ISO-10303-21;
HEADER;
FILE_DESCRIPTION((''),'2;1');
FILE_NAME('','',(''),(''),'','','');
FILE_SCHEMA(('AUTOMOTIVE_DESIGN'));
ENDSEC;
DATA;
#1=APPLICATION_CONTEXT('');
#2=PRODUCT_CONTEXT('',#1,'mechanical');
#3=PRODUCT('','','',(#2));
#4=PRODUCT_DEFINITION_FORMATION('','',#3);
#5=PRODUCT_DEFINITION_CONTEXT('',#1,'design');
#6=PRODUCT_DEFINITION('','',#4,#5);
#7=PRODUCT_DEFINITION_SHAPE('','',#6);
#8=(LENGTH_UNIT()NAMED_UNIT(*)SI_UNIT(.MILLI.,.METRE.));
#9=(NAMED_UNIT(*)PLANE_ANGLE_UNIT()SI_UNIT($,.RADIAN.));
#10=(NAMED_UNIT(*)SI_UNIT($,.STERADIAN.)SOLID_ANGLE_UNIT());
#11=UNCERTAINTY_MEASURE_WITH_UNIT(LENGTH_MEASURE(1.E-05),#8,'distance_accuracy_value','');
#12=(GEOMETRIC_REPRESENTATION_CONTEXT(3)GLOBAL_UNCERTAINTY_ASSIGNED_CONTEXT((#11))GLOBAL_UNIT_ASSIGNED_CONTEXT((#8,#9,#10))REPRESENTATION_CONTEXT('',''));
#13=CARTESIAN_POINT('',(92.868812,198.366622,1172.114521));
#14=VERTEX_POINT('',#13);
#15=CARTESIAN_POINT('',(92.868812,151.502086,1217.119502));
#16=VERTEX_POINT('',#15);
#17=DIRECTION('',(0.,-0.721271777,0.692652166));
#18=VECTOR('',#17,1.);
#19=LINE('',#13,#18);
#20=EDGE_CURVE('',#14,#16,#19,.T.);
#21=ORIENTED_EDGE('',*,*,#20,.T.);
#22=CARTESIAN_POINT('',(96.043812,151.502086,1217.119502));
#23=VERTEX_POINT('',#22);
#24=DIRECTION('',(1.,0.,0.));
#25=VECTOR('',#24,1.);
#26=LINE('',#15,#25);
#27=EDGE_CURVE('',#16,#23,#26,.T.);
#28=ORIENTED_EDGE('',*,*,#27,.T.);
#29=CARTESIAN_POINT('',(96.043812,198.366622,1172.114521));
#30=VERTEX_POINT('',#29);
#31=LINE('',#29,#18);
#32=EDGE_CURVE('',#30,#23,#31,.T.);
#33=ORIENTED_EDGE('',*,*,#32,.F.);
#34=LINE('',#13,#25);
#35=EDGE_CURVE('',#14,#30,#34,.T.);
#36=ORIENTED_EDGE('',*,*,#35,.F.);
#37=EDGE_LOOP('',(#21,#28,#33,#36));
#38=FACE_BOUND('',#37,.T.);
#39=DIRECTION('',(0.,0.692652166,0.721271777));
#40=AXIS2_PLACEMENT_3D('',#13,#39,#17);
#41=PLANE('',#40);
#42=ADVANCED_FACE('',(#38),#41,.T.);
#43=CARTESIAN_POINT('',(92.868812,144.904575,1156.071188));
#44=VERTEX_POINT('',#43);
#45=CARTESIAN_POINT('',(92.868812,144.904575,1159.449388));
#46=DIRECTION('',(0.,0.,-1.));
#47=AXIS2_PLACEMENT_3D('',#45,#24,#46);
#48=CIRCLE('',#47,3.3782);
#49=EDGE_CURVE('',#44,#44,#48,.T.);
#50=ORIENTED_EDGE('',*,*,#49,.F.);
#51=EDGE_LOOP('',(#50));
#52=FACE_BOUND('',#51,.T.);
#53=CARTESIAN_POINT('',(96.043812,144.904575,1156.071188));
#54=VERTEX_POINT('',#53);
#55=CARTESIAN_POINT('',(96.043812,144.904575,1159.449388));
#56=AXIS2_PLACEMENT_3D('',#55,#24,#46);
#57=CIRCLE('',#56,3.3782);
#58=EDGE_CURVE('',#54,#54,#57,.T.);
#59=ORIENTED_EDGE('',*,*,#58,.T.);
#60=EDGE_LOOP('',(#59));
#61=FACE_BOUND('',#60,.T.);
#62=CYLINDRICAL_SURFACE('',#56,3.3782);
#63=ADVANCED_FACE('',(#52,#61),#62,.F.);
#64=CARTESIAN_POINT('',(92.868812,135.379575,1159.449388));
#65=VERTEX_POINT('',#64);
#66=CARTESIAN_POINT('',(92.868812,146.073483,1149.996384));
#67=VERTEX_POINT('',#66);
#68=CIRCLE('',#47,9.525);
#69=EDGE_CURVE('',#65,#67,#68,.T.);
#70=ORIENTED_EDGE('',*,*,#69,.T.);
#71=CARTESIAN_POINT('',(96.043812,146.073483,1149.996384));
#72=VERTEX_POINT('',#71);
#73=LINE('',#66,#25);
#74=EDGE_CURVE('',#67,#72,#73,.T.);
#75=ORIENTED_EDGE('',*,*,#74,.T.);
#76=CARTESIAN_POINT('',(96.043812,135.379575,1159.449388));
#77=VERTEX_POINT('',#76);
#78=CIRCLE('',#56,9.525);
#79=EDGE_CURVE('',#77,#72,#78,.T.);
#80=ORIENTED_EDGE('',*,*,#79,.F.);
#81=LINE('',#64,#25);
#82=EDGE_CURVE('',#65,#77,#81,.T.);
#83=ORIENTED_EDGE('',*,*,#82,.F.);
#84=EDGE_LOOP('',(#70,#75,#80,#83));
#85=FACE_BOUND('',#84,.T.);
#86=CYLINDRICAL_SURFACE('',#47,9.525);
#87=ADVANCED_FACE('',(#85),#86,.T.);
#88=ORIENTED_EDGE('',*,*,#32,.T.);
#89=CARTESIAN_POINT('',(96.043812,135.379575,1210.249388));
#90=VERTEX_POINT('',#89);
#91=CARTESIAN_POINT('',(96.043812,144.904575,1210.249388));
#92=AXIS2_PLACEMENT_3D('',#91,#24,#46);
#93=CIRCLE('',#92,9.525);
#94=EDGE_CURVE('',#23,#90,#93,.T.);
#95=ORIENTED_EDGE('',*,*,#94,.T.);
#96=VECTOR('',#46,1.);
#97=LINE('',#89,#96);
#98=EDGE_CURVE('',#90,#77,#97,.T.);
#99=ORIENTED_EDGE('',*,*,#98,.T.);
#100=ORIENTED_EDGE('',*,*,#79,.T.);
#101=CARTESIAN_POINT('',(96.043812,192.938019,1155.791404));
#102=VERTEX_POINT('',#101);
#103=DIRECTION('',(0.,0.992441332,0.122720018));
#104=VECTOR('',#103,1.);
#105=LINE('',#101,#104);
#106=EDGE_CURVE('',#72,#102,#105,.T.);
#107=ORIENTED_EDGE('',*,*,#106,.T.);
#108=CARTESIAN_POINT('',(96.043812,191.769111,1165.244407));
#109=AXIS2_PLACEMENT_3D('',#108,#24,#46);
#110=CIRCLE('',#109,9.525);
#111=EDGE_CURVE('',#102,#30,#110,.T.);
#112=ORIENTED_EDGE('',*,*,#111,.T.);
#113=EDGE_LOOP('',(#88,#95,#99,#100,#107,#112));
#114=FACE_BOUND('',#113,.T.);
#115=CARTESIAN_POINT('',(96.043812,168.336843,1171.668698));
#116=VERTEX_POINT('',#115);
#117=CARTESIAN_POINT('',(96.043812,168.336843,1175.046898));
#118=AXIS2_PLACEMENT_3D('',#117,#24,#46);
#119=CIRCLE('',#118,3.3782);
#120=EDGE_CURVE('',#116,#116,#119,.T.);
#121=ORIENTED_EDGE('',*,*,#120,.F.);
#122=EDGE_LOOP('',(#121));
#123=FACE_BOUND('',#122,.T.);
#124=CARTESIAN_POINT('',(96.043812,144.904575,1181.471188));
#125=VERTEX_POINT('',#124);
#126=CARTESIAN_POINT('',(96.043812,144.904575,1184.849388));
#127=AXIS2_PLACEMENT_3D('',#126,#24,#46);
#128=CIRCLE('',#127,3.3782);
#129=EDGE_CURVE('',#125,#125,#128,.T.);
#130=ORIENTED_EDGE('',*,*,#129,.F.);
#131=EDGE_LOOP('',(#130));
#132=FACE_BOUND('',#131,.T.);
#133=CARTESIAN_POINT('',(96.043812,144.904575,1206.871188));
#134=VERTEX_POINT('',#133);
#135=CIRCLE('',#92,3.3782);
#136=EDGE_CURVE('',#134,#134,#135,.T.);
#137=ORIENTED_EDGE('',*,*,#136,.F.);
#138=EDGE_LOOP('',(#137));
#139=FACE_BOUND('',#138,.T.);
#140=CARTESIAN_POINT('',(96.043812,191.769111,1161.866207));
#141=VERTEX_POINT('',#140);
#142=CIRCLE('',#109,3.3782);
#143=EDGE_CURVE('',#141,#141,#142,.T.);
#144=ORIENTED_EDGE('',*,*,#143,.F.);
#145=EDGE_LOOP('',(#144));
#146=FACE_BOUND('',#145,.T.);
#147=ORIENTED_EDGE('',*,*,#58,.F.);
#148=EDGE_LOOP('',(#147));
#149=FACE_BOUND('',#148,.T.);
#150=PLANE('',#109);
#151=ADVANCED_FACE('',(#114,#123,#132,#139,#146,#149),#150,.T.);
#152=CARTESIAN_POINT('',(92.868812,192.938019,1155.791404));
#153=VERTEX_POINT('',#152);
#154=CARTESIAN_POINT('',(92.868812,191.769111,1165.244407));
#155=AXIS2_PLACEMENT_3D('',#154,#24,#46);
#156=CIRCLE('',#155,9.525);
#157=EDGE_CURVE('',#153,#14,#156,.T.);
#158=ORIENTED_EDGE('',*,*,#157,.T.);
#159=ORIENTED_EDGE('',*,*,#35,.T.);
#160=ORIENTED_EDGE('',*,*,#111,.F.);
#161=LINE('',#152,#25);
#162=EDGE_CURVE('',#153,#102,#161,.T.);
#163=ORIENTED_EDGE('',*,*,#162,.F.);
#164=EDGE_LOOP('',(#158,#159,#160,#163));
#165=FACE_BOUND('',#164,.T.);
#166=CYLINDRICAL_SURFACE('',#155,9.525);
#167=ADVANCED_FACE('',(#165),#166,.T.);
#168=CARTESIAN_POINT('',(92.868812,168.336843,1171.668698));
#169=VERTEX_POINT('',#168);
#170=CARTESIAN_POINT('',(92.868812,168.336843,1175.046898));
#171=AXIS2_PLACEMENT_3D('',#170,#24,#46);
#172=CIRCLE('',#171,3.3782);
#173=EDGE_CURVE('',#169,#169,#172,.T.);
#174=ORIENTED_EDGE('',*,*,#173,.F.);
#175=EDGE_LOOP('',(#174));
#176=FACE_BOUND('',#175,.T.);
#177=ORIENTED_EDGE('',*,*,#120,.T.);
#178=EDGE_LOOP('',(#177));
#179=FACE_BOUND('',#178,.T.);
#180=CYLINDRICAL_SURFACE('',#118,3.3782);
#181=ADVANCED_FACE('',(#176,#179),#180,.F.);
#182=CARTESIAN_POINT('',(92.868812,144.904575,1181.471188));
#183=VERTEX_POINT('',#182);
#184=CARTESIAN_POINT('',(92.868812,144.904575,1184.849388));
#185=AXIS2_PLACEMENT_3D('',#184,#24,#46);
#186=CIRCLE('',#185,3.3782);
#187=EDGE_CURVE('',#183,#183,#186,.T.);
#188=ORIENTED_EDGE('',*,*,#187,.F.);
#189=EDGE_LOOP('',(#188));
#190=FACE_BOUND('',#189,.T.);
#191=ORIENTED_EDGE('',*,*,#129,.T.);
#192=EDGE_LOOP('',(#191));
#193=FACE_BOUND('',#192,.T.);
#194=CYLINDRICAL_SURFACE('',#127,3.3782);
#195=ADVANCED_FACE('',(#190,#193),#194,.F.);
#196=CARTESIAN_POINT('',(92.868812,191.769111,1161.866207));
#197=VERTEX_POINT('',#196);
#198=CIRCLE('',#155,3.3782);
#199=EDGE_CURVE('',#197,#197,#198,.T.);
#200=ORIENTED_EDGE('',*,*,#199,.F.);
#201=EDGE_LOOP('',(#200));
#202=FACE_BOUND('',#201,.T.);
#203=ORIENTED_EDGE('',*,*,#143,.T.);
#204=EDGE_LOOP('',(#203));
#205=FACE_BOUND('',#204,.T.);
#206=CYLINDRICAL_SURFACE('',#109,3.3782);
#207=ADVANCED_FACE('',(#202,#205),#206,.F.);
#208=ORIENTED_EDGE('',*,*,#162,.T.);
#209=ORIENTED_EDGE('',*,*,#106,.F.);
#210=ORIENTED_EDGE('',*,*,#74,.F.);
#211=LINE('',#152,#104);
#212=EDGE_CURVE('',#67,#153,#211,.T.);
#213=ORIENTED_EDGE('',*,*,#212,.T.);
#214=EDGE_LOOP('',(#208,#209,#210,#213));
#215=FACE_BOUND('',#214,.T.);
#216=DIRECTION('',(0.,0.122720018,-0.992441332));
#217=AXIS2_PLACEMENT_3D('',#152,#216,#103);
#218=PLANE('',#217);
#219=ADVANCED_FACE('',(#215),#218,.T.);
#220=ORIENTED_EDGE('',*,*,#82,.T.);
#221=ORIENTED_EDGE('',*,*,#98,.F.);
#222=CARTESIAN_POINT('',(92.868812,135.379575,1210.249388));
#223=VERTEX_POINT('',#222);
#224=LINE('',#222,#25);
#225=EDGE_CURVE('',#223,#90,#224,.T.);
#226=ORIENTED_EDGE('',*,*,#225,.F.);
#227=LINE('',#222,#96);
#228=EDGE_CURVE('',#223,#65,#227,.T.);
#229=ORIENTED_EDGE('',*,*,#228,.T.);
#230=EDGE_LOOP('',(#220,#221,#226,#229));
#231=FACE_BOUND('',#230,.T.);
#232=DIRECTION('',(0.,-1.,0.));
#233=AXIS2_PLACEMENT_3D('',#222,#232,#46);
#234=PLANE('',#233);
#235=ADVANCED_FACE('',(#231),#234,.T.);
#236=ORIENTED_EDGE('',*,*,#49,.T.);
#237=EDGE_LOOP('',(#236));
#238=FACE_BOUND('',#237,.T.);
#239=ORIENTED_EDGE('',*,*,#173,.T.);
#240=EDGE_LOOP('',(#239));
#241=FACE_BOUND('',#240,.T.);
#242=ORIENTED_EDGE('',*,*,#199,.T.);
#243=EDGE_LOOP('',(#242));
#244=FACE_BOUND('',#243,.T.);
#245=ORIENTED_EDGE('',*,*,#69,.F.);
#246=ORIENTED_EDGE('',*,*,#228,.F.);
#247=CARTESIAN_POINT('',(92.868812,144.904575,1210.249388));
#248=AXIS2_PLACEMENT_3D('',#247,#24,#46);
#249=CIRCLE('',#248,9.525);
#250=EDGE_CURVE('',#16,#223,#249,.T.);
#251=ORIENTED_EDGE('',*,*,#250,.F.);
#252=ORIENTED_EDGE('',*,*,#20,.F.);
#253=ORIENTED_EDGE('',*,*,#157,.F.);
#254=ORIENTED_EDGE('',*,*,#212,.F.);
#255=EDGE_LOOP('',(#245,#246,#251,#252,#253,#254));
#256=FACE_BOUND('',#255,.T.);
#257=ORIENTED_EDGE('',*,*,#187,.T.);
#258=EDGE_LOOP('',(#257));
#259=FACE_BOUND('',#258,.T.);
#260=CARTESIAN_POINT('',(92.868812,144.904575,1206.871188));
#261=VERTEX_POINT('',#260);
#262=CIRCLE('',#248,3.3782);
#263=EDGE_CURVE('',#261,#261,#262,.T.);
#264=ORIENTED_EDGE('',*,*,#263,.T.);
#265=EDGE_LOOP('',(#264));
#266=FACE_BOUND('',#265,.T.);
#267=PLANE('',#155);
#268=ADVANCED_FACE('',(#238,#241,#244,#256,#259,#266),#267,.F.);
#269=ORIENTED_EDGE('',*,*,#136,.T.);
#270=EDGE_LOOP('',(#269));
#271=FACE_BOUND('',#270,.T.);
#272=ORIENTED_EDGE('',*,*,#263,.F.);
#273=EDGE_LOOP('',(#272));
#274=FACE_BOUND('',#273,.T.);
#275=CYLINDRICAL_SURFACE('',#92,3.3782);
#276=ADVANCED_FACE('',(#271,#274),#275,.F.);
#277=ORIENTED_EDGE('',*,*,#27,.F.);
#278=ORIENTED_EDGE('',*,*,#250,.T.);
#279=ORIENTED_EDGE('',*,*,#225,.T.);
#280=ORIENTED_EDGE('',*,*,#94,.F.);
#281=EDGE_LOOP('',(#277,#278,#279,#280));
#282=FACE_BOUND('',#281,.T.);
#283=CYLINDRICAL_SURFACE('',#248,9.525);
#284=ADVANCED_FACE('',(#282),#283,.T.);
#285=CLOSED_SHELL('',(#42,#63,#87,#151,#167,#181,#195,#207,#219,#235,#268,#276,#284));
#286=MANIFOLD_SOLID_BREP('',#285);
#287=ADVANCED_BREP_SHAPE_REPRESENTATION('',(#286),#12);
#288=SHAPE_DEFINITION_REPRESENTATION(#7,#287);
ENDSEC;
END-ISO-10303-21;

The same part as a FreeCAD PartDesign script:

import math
import FreeCAD as App
import Part
import Sketcher
Q = App.Units.Quantity

doc = App.newDocument("Part")
body = doc.addObject("PartDesign::Body", "Body")

# Sketch on YZ plane
sketch1 = body.newObject("Sketcher::SketchObject", "Sketch")
sketch1.AttachmentSupport = (doc.getObject("YZ_Plane"), [""])
sketch1.MapMode = "FlatFace"
sketch1.AttachmentOffset = App.Placement(App.Vector(0, 0, 92.868812), App.Rotation())
sketch1.addGeometry(Part.LineSegment(App.Vector(146, 1150, 0), App.Vector(193, 1156, 0)), False)
sketch1.addGeometry(Part.ArcOfCircle(Part.Circle(App.Vector(192, 1165, 0), App.Vector(0, 0, 1), 10), math.radians(-83), math.radians(46)), False)
sketch1.addGeometry(Part.LineSegment(App.Vector(198, 1172, 0), App.Vector(152, 1217, 0)), False)
sketch1.addGeometry(Part.ArcOfCircle(Part.Circle(App.Vector(145, 1210, 0), App.Vector(0, 0, 1), 10), math.radians(46), math.radians(180)), False)
sketch1.addGeometry(Part.LineSegment(App.Vector(135, 1210, 0), App.Vector(135, 1159, 0)), False)
sketch1.addGeometry(Part.ArcOfCircle(Part.Circle(App.Vector(145, 1159, 0), App.Vector(0, 0, 1), 10), math.radians(180), math.radians(277)), False)
sketch1.addConstraint(Sketcher.Constraint("Tangent", 0, 2, 1, 1))
sketch1.addConstraint(Sketcher.Constraint("Tangent", 1, 2, 2, 1))
sketch1.addConstraint(Sketcher.Constraint("Tangent", 2, 2, 3, 1))
sketch1.addConstraint(Sketcher.Constraint("Tangent", 3, 2, 4, 1))
sketch1.addConstraint(Sketcher.Constraint("Tangent", 4, 2, 5, 1))
sketch1.addConstraint(Sketcher.Constraint("Tangent", 5, 2, 0, 1))
sketch1.addConstraint(Sketcher.Constraint("Vertical", 4))
sketch1.addConstraint(Sketcher.Constraint("Equal", 1, 3))
sketch1.addConstraint(Sketcher.Constraint("Equal", 3, 5))
sketch1.addConstraint(Sketcher.Constraint("DistanceY", 4, 2, 4, 1, Q("2 in")))
sketch1.addConstraint(Sketcher.Constraint("Radius", 1, Q("0.375 in")))
sketch1.addConstraint(Sketcher.Constraint("DistanceY", -1, 1, 2, 2, 1217.119502))
sketch1.addConstraint(Sketcher.Constraint("DistanceY", 0, 2, 2, 2, 61.328098))
sketch1.addConstraint(Sketcher.Constraint("DistanceX", -1, 1, 1, 3, 191.769111))
sketch1.addConstraint(Sketcher.Constraint("DistanceY", -1, 1, 3, 3, 1210.249388))
pad1 = body.newObject("PartDesign::Pad", "Pad")
pad1.Profile = sketch1
pad1.Length = Q("0.125 in")

# Sketch on YZ plane
sketch2 = body.newObject("Sketcher::SketchObject", "Sketch001")
sketch2.AttachmentSupport = (doc.getObject("YZ_Plane"), [""])
sketch2.MapMode = "FlatFace"
sketch2.AttachmentOffset = App.Placement(App.Vector(0, 0, 96.043812), App.Rotation())
sketch2.addGeometry(Part.Circle(App.Vector(168.3, 1175, 0), App.Vector(0, 0, 1), 3.4), False)
sketch2.addGeometry(Part.Circle(App.Vector(191.8, 1165.2, 0), App.Vector(0, 0, 1), 3.4), False)
sketch2.addGeometry(Part.Circle(App.Vector(144.9, 1210.2, 0), App.Vector(0, 0, 1), 3.4), False)
sketch2.addGeometry(Part.Circle(App.Vector(144.9, 1184.8, 0), App.Vector(0, 0, 1), 3.4), False)
sketch2.addGeometry(Part.Circle(App.Vector(144.9, 1159.4, 0), App.Vector(0, 0, 1), 3.4), False)
sketch2.addConstraint(Sketcher.Constraint("Equal", 0, 1))
sketch2.addConstraint(Sketcher.Constraint("Equal", 1, 2))
sketch2.addConstraint(Sketcher.Constraint("Equal", 2, 3))
sketch2.addConstraint(Sketcher.Constraint("Equal", 3, 4))
sketch2.addConstraint(Sketcher.Constraint("Vertical", 2, 3, 3, 3))
sketch2.addConstraint(Sketcher.Constraint("Vertical", 3, 3, 4, 3))
sketch2.addConstraint(Sketcher.Constraint("Diameter", 0, Q("0.266 in")))
sketch2.addConstraint(Sketcher.Constraint("DistanceY", 3, 3, 2, 3, Q("1 in")))
sketch2.addConstraint(Sketcher.Constraint("DistanceY", 4, 3, 3, 3, Q("1 in")))
sketch2.addConstraint(Sketcher.Constraint("DistanceX", -1, 1, 1, 3, 191.769111))
sketch2.addConstraint(Sketcher.Constraint("DistanceY", -1, 1, 2, 3, 1210.249388))
sketch2.addConstraint(Sketcher.Constraint("DistanceY", 1, 3, 0, 3, 9.80249))
sketch2.addConstraint(Sketcher.Constraint("DistanceY", 0, 3, 2, 3, 35.20249))
sketch2.addConstraint(Sketcher.Constraint("DistanceX", -1, 1, 0, 3, 168.336843))
sketch2.addConstraint(Sketcher.Constraint("DistanceX", -1, 1, 2, 3, 144.904575))
doc.recompute()
hole = body.newObject("PartDesign::Hole", "Hole")
hole.Profile = sketch2
hole.ThreadType = "None"
hole.Diameter = Q("0.266 in")
hole.DepthType = "ThroughAll"

doc.recompute()
